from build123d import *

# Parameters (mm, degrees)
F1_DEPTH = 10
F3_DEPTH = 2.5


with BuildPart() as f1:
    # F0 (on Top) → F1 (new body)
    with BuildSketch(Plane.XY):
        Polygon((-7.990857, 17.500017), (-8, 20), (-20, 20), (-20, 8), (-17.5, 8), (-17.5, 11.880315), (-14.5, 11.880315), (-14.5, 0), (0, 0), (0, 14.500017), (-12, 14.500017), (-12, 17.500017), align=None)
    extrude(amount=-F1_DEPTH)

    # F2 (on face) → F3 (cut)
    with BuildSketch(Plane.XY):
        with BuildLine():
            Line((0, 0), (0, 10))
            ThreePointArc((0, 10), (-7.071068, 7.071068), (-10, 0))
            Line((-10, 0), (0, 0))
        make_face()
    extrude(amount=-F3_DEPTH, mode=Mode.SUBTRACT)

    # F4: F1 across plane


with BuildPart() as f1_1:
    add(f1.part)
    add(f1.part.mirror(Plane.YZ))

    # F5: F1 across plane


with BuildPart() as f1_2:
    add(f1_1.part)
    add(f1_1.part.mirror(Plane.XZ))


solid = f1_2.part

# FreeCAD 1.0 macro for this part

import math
import FreeCAD as App
import Part
import Sketcher

V = App.Vector
Q = App.Units.Quantity


def add_polygon(sketch, points):
    """Adds a closed chain of lines whose ends are joined by coincident constraints."""
    first, n = sketch.GeometryCount, len(points)
    for a, b in zip(points, points[1:] + points[:1]):
        sketch.addGeometry(Part.LineSegment(App.Vector(*a, 0), App.Vector(*b, 0)), False)
    for i in range(n):
        sketch.addConstraint(Sketcher.Constraint("Coincident", first + i, 2, first + (i + 1) % n, 1))

doc = App.newDocument("Part")
body = doc.addObject("PartDesign::Body", "Body")

# Sketch on XY plane
sketch1 = body.newObject("Sketcher::SketchObject", "Sketch")
sketch1.AttachmentSupport = (doc.getObject("XY_Plane"), [""])
sketch1.MapMode = "FlatFace"
add_polygon(sketch1, [(-8, 17.5), (-8, 20), (-20, 20), (-20, 8), (-17.5, 8), (-17.5, 11.9), (-14.5, 11.9), (-14.5, 0), (0, 0), (0, 14.5), (-12, 14.5), (-12, 17.5)])  # lines 0-11
sketch1.addConstraint(Sketcher.Constraint("Horizontal", 1))
sketch1.addConstraint(Sketcher.Constraint("Vertical", 2))
sketch1.addConstraint(Sketcher.Constraint("Horizontal", 3))
sketch1.addConstraint(Sketcher.Constraint("Vertical", 4))
sketch1.addConstraint(Sketcher.Constraint("Horizontal", 5))
sketch1.addConstraint(Sketcher.Constraint("Vertical", 6))
sketch1.addConstraint(Sketcher.Constraint("Horizontal", 7))
sketch1.addConstraint(Sketcher.Constraint("Vertical", 8))
sketch1.addConstraint(Sketcher.Constraint("Horizontal", 9))
sketch1.addConstraint(Sketcher.Constraint("Vertical", 10))
sketch1.addConstraint(Sketcher.Constraint("Horizontal", 11))
sketch1.addConstraint(Sketcher.Constraint("Coincident", 7, 2, -1, 1))
sketch1.addConstraint(Sketcher.Constraint("Equal", 1, 9))
sketch1.addConstraint(Sketcher.Constraint("Equal", 9, 2))
sketch1.addConstraint(Sketcher.Constraint("Equal", 5, 10))
sketch1.addConstraint(Sketcher.Constraint("DistanceX", 1, 2, 1, 1, Q("12 mm")))
sketch1.addConstraint(Sketcher.Constraint("DistanceX", 5, 1, 5, 2, Q("3 mm")))
sketch1.addConstraint(Sketcher.Constraint("DistanceX", 3, 1, 3, 2, Q("2.5 mm")))
sketch1.addConstraint(Sketcher.Constraint("DistanceX", 7, 1, 7, 2, Q("14.5 mm")))
sketch1.addConstraint(Sketcher.Constraint("DistanceY", -1, 1, 0, 2, Q("20 mm")))
sketch1.addConstraint(Sketcher.Constraint("Distance", 0, Q("2.5 mm")))
sketch1.addConstraint(Sketcher.Constraint("DistanceX", 11, 1, 11, 2, Q("4.009143 mm")))
sketch1.addConstraint(Sketcher.Constraint("DistanceY", 4, 1, 4, 2, Q("3.880315 mm")))
pad1 = body.newObject("PartDesign::Pad", "Pad")
pad1.Profile = sketch1
pad1.Length = 10
pad1.Reversed = True

# Sketch on XY plane
sketch2 = body.newObject("Sketcher::SketchObject", "Sketch001")
sketch2.AttachmentSupport = (doc.getObject("XY_Plane"), [""])
sketch2.MapMode = "FlatFace"
sketch2.addGeometry(Part.LineSegment(V(0, 0, 0), V(0, 10, 0)), False)
sketch2.addGeometry(Part.ArcOfCircle(Part.Circle(V(0, 0, 0), V(0, 0, 1), 10), math.radians(90), math.radians(180)), False)
sketch2.addGeometry(Part.LineSegment(V(-10, 0, 0), V(0, 0, 0)), False)
sketch2.addConstraint(Sketcher.Constraint("Coincident", 0, 2, 1, 1))
sketch2.addConstraint(Sketcher.Constraint("Coincident", 1, 2, 2, 1))
sketch2.addConstraint(Sketcher.Constraint("Coincident", 2, 2, 0, 1))
sketch2.addConstraint(Sketcher.Constraint("Vertical", 0))
sketch2.addConstraint(Sketcher.Constraint("Horizontal", 2))
sketch2.addConstraint(Sketcher.Constraint("Coincident", 1, 3, -1, 1))
sketch2.addConstraint(Sketcher.Constraint("Coincident", 2, 2, -1, 1))
sketch2.addConstraint(Sketcher.Constraint("Radius", 1, Q("9.999999 mm")))
pocket1 = body.newObject("PartDesign::Pocket", "Pocket")
pocket1.Profile = sketch2
pocket1.Length = 2.5
body2 = doc.addObject("PartDesign::Body", "Body001")
doc.recompute()

body2.BaseFeature = body
doc.recompute()

mirroring = doc.addObject("Part::Mirroring", "Mirroring")
mirroring.Source = body
mirroring.Base = V(0, 0, 0)
mirroring.Normal = V(1, 0, 0)
body3 = doc.addObject("PartDesign::Body", "Body002")
body3.BaseFeature = mirroring
boolean = body2.newObject("PartDesign::Boolean", "Boolean")
boolean.Type = "Fuse"
boolean.addObjects([body3])
doc.recompute()
body4 = doc.addObject("PartDesign::Body", "Body003")
doc.recompute()

body4.BaseFeature = body2
doc.recompute()

mirroring2 = doc.addObject("Part::Mirroring", "Mirroring001")
mirroring2.Source = body2
mirroring2.Base = V(0, 0, 0)
mirroring2.Normal = V(0, -1, 0)
body5 = doc.addObject("PartDesign::Body", "Body004")
body5.BaseFeature = mirroring2
boolean2 = body4.newObject("PartDesign::Boolean", "Boolean001")
boolean2.Type = "Fuse"
boolean2.addObjects([body5])
doc.recompute()
mirroring.Visibility = False
mirroring2.Visibility = False

doc.recompute()
